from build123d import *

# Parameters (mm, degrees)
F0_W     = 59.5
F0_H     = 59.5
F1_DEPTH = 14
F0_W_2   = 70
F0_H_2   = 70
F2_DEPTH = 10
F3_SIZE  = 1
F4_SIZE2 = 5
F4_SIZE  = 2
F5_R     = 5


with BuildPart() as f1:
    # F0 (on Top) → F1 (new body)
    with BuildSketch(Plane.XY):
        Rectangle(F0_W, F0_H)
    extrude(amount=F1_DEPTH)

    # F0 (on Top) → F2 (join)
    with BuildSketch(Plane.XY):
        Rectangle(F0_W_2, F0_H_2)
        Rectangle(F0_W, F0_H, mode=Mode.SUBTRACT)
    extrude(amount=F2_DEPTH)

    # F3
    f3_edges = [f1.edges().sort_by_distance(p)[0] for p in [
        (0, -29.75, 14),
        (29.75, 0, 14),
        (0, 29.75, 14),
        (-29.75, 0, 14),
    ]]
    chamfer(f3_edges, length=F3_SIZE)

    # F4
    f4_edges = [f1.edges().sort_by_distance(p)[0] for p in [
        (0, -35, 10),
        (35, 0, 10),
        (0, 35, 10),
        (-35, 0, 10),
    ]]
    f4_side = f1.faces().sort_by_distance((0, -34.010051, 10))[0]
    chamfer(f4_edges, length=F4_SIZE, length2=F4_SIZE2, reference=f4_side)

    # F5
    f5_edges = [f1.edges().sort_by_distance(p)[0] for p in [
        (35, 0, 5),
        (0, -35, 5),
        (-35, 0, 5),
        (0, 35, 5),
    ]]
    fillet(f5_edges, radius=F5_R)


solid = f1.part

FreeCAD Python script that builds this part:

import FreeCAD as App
import Part
import Sketcher
from FreeCAD import Vector


def edges_at(feature, points):
    """Names of the edges that pass closest to the given points."""
    edges = feature.Shape.Edges
    near = lambda p: min(range(len(edges)), key=lambda i: edges[i].distToShape(Part.Vertex(*p))[0])
    return sorted({f"Edge{near(p) + 1}" for p in points})


def add_polygon(sketch, points):
    """Adds a closed chain of lines whose ends are joined by coincident constraints."""
    first, n = sketch.GeometryCount, len(points)
    for a, b in zip(points, points[1:] + points[:1]):
        sketch.addGeometry(Part.LineSegment(App.Vector(*a, 0), App.Vector(*b, 0)), False)
    for i in range(n):
        sketch.addConstraint(Sketcher.Constraint("Coincident", first + i, 2, first + (i + 1) % n, 1))

doc = App.newDocument("Part")
body = doc.addObject("PartDesign::Body", "Body")

# Sketch on XY plane
sketch1 = doc.addObject("Sketcher::SketchObject", "Sketch")
body.addObject(sketch1)
sketch1.AttachmentSupport = (doc.XY_Plane, [""])
sketch1.MapMode = "FlatFace"
add_polygon(sketch1, [(-30, 30), (-30, -30), (30, -30), (30, 30)])  # lines 0-3
sketch1.addConstraint(Sketcher.Constraint("Vertical", 0))
sketch1.addConstraint(Sketcher.Constraint("Horizontal", 1))
sketch1.addConstraint(Sketcher.Constraint("Vertical", 2))
sketch1.addConstraint(Sketcher.Constraint("Horizontal", 3))
sketch1.addConstraint(Sketcher.Constraint("Symmetric", 0, 2, 2, 2, -1, 1))
sketch1.addConstraint(Sketcher.Constraint("Equal", 3, 0))
sketch1.addConstraint(Sketcher.Constraint("DistanceX", 1, 1, 1, 2, 59.5))
pad1 = doc.addObject("PartDesign::Pad", "Pad")
body.addObject(pad1)
pad1.Profile = sketch1
pad1.Length = 14

# Sketch on XY plane
sketch2 = doc.addObject("Sketcher::SketchObject", "Sketch001")
body.addObject(sketch2)
sketch2.AttachmentSupport = (doc.XY_Plane, [""])
sketch2.MapMode = "FlatFace"
add_polygon(sketch2, [(-35, 35), (-35, -35), (35, -35), (35, 35)])  # lines 0-3
add_polygon(sketch2, [(30, -30), (-30, -30), (-30, 30), (30, 30)])  # lines 4-7
sketch2.addConstraint(Sketcher.Constraint("Vertical", 0))
sketch2.addConstraint(Sketcher.Constraint("Horizontal", 1))
sketch2.addConstraint(Sketcher.Constraint("Vertical", 2))
sketch2.addConstraint(Sketcher.Constraint("Horizontal", 3))
sketch2.addConstraint(Sketcher.Constraint("Horizontal", 4))
sketch2.addConstraint(Sketcher.Constraint("Vertical", 5))
sketch2.addConstraint(Sketcher.Constraint("Horizontal", 6))
sketch2.addConstraint(Sketcher.Constraint("Vertical", 7))
sketch2.addConstraint(Sketcher.Constraint("Symmetric", 0, 2, 2, 2, -1, 1))
sketch2.addConstraint(Sketcher.Constraint("Symmetric", 4, 2, 6, 2, -1, 1))
sketch2.addConstraint(Sketcher.Constraint("Equal", 3, 0))
sketch2.addConstraint(Sketcher.Constraint("Equal", 6, 5))
sketch2.addConstraint(Sketcher.Constraint("DistanceX", 1, 1, 1, 2, 70.0))
sketch2.addConstraint(Sketcher.Constraint("DistanceX", 4, 2, 4, 1, 59.5))
pad2 = doc.addObject("PartDesign::Pad", "Pad001")
body.addObject(pad2)
pad2.Profile = sketch2
pad2.Length = 10
doc.recompute()

chamfer = doc.addObject("PartDesign::Chamfer", "Chamfer")
body.addObject(chamfer)
chamfer.Base = (pad2, edges_at(pad2, [
    (0, -29.75, 14),
    (29.75, 0, 14),
    (0, 29.75, 14),
    (-29.75, 0, 14),
]))
chamfer.Size = 1
doc.recompute()

chamfer2 = doc.addObject("PartDesign::Chamfer", "Chamfer001")
body.addObject(chamfer2)
chamfer2.Base = (chamfer, edges_at(chamfer, [
    (0, -35, 10),
    (35, 0, 10),
    (0, 35, 10),
    (-35, 0, 10),
]))
chamfer2.ChamferType = "Two distances"
chamfer2.Size = 2
chamfer2.Size2 = 5
doc.recompute()

fillet = doc.addObject("PartDesign::Fillet", "Fillet")
body.addObject(fillet)
fillet.Base = (chamfer2, edges_at(chamfer2, [
    (35, 0, 5),
    (0, -35, 5),
    (-35, 0, 5),
    (0, 35, 5),
]))
fillet.Radius = 5

doc.recompute()
